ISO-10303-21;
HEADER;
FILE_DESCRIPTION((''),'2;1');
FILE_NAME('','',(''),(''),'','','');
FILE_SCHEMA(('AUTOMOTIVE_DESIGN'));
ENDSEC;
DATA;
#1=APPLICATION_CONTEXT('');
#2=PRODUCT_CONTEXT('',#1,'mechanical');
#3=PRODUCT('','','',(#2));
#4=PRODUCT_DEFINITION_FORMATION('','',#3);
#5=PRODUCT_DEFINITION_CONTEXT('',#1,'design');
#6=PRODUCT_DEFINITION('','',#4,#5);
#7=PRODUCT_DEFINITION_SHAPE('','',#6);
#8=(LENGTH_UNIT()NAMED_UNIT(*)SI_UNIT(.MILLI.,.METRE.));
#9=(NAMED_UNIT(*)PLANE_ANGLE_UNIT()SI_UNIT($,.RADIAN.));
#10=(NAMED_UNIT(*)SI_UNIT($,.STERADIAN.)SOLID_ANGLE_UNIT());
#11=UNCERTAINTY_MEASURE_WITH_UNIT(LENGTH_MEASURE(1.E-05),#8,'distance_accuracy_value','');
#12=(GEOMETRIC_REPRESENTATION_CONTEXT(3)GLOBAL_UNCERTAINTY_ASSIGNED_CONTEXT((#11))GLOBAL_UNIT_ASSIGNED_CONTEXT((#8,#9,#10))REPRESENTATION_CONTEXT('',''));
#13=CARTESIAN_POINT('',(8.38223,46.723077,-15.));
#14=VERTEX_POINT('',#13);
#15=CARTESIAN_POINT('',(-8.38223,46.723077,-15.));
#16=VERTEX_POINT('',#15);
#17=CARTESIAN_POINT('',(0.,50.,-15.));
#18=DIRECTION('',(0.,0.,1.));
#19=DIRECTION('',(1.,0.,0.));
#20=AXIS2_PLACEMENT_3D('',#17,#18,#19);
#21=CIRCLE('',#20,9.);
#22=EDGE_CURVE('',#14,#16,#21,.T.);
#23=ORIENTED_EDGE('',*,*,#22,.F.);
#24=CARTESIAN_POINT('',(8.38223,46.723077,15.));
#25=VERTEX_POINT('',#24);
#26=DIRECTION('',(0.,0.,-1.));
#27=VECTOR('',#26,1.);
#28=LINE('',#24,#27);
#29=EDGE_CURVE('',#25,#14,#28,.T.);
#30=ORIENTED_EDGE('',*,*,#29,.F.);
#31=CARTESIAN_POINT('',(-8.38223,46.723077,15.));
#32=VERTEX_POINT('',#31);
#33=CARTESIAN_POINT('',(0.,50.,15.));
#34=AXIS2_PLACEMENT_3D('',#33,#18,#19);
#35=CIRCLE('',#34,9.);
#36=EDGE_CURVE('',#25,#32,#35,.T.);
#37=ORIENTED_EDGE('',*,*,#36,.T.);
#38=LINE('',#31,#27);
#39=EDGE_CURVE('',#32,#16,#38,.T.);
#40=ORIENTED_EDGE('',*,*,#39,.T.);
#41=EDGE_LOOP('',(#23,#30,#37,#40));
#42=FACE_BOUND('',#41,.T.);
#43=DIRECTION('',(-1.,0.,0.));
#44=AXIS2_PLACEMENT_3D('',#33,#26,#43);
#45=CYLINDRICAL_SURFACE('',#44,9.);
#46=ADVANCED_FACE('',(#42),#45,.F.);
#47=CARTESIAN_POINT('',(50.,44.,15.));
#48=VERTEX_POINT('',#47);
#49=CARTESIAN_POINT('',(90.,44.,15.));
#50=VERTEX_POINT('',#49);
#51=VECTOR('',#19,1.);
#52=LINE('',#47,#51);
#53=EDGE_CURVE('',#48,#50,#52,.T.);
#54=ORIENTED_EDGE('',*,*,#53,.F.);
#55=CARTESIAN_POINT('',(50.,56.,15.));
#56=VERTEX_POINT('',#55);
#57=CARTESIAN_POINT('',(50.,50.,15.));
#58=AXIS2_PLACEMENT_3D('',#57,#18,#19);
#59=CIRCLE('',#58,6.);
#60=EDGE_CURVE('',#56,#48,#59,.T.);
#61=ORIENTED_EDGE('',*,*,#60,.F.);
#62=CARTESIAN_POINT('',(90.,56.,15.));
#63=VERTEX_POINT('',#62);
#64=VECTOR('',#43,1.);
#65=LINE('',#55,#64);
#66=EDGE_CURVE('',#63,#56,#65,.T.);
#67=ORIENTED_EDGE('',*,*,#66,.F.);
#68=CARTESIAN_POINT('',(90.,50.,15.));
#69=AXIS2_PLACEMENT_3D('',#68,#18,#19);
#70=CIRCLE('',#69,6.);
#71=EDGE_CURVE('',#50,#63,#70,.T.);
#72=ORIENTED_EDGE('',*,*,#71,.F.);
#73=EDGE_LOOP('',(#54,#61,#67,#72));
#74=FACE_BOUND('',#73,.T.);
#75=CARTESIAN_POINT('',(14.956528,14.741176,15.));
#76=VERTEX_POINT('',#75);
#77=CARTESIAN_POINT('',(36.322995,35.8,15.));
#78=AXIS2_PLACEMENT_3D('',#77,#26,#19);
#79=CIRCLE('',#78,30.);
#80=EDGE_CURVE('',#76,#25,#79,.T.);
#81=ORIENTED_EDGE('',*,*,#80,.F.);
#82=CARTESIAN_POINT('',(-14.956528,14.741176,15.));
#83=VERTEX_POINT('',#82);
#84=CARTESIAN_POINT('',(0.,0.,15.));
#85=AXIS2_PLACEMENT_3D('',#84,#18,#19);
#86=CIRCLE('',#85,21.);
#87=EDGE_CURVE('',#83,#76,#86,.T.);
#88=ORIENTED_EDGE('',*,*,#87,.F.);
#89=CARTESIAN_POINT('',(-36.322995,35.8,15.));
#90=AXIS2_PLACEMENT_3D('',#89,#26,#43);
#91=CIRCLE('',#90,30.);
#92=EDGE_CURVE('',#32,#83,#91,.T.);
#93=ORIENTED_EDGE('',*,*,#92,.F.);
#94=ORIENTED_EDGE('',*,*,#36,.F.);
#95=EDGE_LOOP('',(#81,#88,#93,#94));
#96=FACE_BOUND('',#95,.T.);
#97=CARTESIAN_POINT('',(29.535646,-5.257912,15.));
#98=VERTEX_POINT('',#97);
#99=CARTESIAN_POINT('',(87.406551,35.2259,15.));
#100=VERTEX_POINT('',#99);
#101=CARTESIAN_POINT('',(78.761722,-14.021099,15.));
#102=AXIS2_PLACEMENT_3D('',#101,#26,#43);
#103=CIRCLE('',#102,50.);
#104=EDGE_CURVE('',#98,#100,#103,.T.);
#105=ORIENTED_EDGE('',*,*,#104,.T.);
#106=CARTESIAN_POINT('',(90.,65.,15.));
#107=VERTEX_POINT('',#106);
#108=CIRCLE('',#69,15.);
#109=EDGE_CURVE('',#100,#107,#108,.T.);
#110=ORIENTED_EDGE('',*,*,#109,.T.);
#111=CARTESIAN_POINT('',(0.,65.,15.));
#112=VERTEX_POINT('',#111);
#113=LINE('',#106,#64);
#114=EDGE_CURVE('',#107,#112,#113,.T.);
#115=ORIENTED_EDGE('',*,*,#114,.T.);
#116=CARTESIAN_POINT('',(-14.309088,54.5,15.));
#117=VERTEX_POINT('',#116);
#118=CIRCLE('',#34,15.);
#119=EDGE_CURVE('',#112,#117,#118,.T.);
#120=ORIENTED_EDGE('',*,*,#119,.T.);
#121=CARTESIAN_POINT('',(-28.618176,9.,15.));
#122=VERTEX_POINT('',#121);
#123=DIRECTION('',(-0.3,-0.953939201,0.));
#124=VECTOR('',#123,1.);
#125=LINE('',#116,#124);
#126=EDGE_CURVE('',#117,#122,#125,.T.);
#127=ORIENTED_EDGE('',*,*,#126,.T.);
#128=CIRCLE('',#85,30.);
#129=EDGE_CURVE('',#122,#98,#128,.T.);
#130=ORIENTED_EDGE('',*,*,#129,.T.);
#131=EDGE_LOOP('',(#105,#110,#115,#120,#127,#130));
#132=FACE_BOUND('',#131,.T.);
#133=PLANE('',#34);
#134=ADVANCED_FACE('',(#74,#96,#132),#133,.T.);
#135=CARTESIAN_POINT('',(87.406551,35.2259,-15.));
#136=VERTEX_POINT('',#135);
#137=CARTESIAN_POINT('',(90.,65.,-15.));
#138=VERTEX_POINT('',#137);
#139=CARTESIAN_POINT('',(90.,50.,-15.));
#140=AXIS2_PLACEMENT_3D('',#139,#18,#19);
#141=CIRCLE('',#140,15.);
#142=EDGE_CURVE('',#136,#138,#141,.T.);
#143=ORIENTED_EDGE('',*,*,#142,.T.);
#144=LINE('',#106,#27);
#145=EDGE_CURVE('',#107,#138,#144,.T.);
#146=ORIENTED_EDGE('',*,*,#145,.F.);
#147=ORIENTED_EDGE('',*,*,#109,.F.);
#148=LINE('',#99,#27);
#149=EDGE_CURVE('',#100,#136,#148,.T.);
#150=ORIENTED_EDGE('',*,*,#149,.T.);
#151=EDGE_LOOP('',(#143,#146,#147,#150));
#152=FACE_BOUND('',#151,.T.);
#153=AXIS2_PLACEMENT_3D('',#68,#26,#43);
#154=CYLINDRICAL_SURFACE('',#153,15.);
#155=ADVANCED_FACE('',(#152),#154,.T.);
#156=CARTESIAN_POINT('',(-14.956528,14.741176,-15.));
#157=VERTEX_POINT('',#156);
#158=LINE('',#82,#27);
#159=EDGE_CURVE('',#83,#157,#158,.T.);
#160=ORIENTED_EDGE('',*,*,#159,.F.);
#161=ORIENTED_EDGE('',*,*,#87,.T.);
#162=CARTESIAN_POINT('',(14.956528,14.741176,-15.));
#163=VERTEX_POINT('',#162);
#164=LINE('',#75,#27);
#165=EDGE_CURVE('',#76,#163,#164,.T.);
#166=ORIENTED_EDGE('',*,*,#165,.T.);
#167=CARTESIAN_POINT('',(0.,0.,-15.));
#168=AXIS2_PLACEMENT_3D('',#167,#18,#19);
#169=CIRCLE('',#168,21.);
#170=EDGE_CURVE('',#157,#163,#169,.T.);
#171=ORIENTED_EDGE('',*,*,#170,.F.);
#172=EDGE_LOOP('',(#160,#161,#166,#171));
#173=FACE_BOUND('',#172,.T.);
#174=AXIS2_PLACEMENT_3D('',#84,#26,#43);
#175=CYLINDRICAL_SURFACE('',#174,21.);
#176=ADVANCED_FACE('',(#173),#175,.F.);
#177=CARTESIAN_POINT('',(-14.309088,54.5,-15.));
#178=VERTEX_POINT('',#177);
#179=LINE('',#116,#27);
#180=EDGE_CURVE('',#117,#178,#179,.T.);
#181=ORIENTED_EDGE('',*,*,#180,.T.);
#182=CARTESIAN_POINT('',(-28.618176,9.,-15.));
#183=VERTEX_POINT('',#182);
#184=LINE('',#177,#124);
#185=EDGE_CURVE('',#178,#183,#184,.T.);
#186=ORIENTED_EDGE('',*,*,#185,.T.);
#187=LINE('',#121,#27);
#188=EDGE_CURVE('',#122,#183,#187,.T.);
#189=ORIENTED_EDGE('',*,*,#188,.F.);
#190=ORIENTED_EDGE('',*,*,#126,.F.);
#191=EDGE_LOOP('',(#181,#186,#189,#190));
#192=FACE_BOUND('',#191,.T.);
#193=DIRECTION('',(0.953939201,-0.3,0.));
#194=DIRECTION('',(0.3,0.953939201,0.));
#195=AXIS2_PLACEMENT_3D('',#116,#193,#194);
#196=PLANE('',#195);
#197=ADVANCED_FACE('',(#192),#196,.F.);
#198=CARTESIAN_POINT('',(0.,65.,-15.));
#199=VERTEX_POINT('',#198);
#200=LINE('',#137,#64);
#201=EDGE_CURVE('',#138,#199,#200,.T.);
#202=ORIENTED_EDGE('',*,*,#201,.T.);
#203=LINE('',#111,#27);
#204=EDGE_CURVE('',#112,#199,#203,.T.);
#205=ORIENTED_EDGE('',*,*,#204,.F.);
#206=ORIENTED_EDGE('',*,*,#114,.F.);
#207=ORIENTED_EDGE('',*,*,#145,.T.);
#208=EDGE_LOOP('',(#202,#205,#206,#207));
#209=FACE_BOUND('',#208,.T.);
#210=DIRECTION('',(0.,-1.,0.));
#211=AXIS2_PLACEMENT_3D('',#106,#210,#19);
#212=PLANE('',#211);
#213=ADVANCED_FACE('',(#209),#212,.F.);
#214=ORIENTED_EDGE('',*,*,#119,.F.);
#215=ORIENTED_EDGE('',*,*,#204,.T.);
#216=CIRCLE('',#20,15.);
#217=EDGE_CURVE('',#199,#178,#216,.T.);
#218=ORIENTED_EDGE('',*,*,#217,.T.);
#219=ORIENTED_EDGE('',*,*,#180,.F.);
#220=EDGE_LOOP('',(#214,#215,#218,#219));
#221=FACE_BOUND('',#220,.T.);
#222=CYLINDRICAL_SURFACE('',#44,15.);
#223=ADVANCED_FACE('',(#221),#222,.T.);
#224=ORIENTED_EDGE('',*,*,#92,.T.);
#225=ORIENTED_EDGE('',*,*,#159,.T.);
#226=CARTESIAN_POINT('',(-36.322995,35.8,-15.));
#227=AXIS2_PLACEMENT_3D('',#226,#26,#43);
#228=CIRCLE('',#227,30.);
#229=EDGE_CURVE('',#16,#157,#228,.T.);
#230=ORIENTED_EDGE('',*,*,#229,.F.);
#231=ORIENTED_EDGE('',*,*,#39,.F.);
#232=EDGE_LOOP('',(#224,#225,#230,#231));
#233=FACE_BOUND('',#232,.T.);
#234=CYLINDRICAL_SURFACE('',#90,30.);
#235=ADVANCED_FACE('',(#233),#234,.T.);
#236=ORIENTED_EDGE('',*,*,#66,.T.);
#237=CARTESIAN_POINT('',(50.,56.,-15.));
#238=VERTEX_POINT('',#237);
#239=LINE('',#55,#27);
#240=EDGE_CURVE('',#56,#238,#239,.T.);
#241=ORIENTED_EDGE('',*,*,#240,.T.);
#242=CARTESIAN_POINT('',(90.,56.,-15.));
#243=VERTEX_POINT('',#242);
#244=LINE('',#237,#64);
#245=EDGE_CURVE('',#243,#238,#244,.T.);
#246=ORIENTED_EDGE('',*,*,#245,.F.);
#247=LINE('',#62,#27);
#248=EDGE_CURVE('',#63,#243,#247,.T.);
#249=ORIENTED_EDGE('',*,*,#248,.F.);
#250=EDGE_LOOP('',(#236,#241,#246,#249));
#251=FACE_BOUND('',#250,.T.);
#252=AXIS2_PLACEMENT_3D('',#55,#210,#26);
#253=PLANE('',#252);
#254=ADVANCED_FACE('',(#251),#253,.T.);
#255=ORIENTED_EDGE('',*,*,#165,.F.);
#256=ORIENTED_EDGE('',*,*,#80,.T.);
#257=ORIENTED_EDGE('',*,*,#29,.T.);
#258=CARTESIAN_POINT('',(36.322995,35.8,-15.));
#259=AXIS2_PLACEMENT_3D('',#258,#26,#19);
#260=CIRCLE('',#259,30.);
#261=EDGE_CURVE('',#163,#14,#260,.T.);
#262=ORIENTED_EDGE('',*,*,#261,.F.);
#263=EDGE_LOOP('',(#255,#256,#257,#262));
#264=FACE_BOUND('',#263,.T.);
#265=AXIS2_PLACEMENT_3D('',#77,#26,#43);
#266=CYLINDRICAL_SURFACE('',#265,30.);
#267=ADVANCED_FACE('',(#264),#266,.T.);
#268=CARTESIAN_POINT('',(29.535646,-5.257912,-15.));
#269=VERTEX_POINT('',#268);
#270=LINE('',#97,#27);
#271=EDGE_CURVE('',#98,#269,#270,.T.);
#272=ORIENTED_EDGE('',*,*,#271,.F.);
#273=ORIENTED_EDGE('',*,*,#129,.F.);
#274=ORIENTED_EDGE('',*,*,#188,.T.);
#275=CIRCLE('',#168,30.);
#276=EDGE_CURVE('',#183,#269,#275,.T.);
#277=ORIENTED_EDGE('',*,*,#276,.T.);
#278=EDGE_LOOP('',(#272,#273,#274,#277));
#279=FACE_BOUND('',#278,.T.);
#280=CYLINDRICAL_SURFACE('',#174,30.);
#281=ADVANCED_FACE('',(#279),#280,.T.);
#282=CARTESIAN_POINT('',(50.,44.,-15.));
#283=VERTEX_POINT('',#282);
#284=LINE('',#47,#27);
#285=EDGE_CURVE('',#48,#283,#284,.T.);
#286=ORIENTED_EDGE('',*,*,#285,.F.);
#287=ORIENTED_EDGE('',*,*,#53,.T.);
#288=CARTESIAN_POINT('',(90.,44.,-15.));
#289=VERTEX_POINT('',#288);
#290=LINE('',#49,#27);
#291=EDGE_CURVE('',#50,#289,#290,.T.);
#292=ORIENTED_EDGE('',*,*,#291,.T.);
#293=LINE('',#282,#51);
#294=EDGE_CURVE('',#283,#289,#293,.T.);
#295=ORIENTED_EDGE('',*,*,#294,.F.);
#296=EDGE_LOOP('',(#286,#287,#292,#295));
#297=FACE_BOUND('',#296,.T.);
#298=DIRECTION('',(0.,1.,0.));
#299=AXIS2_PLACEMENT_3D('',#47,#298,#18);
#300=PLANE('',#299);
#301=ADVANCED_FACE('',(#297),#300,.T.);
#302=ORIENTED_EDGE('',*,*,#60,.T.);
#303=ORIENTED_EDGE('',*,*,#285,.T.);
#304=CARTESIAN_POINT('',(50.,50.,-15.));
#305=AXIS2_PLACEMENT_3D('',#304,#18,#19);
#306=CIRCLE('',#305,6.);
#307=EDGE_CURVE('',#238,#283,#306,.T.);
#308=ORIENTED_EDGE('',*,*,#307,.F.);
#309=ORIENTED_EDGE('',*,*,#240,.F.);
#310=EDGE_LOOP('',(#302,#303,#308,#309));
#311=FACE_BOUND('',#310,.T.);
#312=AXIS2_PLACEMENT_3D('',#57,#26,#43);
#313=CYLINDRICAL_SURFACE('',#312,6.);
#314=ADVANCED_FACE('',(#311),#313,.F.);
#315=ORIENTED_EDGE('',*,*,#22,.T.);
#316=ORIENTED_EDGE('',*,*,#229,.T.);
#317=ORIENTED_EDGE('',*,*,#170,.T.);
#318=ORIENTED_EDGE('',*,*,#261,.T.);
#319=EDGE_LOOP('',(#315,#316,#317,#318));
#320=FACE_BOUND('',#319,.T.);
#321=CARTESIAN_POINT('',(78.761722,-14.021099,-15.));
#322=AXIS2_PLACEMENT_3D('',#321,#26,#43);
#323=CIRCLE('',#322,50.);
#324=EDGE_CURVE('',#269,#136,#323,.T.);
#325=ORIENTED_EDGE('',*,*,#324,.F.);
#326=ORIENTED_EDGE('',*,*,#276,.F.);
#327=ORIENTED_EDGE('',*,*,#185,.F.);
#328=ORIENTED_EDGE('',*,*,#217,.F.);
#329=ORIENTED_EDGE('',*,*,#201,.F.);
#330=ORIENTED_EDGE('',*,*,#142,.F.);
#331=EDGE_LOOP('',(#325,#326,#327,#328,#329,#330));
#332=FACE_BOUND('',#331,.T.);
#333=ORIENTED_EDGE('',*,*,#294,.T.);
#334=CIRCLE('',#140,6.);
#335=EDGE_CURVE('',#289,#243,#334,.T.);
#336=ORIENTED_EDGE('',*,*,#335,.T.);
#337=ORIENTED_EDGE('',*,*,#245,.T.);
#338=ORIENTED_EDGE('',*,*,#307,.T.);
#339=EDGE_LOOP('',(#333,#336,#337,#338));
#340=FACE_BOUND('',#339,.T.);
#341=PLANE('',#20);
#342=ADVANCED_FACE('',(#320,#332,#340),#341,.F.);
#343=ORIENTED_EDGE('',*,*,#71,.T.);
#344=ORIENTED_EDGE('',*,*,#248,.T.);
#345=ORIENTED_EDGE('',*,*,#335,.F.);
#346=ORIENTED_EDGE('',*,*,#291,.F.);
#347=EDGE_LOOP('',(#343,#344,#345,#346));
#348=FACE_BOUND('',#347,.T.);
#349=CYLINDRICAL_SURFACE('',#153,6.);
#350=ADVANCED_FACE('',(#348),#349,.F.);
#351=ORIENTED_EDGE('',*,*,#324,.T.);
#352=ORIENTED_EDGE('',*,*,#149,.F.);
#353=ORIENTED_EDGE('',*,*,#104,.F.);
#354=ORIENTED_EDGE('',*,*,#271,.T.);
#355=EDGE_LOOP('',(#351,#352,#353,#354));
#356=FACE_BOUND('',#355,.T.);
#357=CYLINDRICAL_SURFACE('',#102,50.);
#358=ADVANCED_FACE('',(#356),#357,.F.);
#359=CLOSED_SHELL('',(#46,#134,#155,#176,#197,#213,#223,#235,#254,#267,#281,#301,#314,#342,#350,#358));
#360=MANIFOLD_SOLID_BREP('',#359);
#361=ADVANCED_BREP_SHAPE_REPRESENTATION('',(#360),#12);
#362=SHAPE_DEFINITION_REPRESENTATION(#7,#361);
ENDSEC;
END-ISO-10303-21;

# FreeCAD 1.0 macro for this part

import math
import FreeCAD as App
import Part
import Sketcher
from FreeCAD import Vector
Q = App.Units.Quantity

doc = App.newDocument("Part")
body = doc.addObject("PartDesign::Body", "Body")

sketch1 = doc.addObject("Sketcher::SketchObject", "Sketch")
body.addObject(sketch1)
sketch1.AttachmentSupport = (doc.XY_Plane, [""])
sketch1.MapMode = "FlatFace"
sketch1.addGeometry(Part.LineSegment(Vector(90, 65, 0), Vector(0, 65, 0)), False)
sketch1.addGeometry(Part.ArcOfCircle(Part.Circle(Vector(0, 50, 0), Vector(0, 0, 1), 15), math.radians(90), math.radians(163)), False)
sketch1.addGeometry(Part.LineSegment(Vector(-14, 54, 0), Vector(-29, 9, 0)), False)
sketch1.addGeometry(Part.ArcOfCircle(Part.Circle(Vector(0, 0, 0), Vector(0, 0, 1), 30), math.radians(163), math.radians(350)), False)
sketch1.addGeometry(Part.ArcOfCircle(Part.Circle(Vector(79, -14, 0), Vector(0, 0, 1), 50), math.radians(80), math.radians(170)), False)
sketch1.addGeometry(Part.ArcOfCircle(Part.Circle(Vector(90, 50, 0), Vector(0, 0, 1), 15), math.radians(-100), math.radians(90)), False)
sketch1.addGeometry(Part.ArcOfCircle(Part.Circle(Vector(0, 0, 0), Vector(0, 0, 1), 21), math.radians(135), math.radians(405)), False)
sketch1.addGeometry(Part.ArcOfCircle(Part.Circle(Vector(-36, 36, 0), Vector(0, 0, 1), 30), math.radians(-45), math.radians(21)), False)
sketch1.addGeometry(Part.ArcOfCircle(Part.Circle(Vector(0, 50, 0), Vector(0, 0, 1), 9), math.radians(-21), math.radians(201)), False)
sketch1.addGeometry(Part.ArcOfCircle(Part.Circle(Vector(36, 36, 0), Vector(0, 0, 1), 30), math.radians(159), math.radians(225)), False)
sketch1.addGeometry(Part.ArcOfCircle(Part.Circle(Vector(50, 50, 0), Vector(0, 0, 1), 6), math.radians(90), math.radians(270)), False)
sketch1.addGeometry(Part.LineSegment(Vector(50, 56, 0), Vector(90, 56, 0)), False)
sketch1.addGeometry(Part.ArcOfCircle(Part.Circle(Vector(90, 50, 0), Vector(0, 0, 1), 6), math.radians(-90), math.radians(90)), False)
sketch1.addGeometry(Part.LineSegment(Vector(90, 44, 0), Vector(50, 44, 0)), False)
sketch1.addConstraint(Sketcher.Constraint("Tangent", 0, 2, 1, 1))
sketch1.addConstraint(Sketcher.Constraint("Tangent", 1, 2, 2, 1))
sketch1.addConstraint(Sketcher.Constraint("Tangent", 2, 2, 3, 1))
sketch1.addConstraint(Sketcher.Constraint("Tangent", 3, 2, 4, 2))
sketch1.addConstraint(Sketcher.Constraint("Tangent", 4, 1, 5, 1))
sketch1.addConstraint(Sketcher.Constraint("Tangent", 5, 2, 0, 1))
sketch1.addConstraint(Sketcher.Constraint("Tangent", 6, 1, 7, 1))
sketch1.addConstraint(Sketcher.Constraint("Tangent", 7, 2, 8, 2))
sketch1.addConstraint(Sketcher.Constraint("Tangent", 8, 1, 9, 1))
sketch1.addConstraint(Sketcher.Constraint("Tangent", 9, 2, 6, 2))
sketch1.addConstraint(Sketcher.Constraint("Tangent", 10, 1, 11, 1))
sketch1.addConstraint(Sketcher.Constraint("Tangent", 11, 2, 12, 2))
sketch1.addConstraint(Sketcher.Constraint("Tangent", 12, 1, 13, 1))
sketch1.addConstraint(Sketcher.Constraint("Tangent", 13, 2, 10, 2))
sketch1.addConstraint(Sketcher.Constraint("Horizontal", 0))
sketch1.addConstraint(Sketcher.Constraint("Horizontal", 11))
sketch1.addConstraint(Sketcher.Constraint("Horizontal", 13))
sketch1.addConstraint(Sketcher.Constraint("Coincident", 3, 3, -1, 1))
sketch1.addConstraint(Sketcher.Constraint("Coincident", 6, 3, -1, 1))
sketch1.addConstraint(Sketcher.Constraint("Coincident", 8, 3, 1, 3))
sketch1.addConstraint(Sketcher.Constraint("Coincident", 12, 3, 5, 3))
sketch1.addConstraint(Sketcher.Constraint("Equal", 1, 5))
sketch1.addConstraint(Sketcher.Constraint("Equal", 3, 7))
sketch1.addConstraint(Sketcher.Constraint("Equal", 7, 9))
sketch1.addConstraint(Sketcher.Constraint("PointOnObject", 1, 3, -2))
sketch1.addConstraint(Sketcher.Constraint("Radius", 1, Q("15 mm")))
sketch1.addConstraint(Sketcher.Constraint("Radius", 3, Q("30 mm")))
sketch1.addConstraint(Sketcher.Constraint("Radius", 4, Q("50 mm")))
sketch1.addConstraint(Sketcher.Constraint("Radius", 6, Q("21 mm")))
sketch1.addConstraint(Sketcher.Constraint("Radius", 8, Q("9 mm")))
sketch1.addConstraint(Sketcher.Constraint("Radius", 10, Q("6 mm")))
sketch1.addConstraint(Sketcher.Constraint("DistanceX", 0, 2, 0, 1, Q("90 mm")))
sketch1.addConstraint(Sketcher.Constraint("DistanceX", 11, 1, 11, 2, Q("40 mm")))
sketch1.addConstraint(Sketcher.Constraint("DistanceY", -1, 1, 1, 3, Q("50 mm")))
pad1 = doc.addObject("PartDesign::Pad", "Pad")
body.addObject(pad1)
pad1.Profile = sketch1
pad1.Length = 30
pad1.Midplane = True

doc.recompute()
